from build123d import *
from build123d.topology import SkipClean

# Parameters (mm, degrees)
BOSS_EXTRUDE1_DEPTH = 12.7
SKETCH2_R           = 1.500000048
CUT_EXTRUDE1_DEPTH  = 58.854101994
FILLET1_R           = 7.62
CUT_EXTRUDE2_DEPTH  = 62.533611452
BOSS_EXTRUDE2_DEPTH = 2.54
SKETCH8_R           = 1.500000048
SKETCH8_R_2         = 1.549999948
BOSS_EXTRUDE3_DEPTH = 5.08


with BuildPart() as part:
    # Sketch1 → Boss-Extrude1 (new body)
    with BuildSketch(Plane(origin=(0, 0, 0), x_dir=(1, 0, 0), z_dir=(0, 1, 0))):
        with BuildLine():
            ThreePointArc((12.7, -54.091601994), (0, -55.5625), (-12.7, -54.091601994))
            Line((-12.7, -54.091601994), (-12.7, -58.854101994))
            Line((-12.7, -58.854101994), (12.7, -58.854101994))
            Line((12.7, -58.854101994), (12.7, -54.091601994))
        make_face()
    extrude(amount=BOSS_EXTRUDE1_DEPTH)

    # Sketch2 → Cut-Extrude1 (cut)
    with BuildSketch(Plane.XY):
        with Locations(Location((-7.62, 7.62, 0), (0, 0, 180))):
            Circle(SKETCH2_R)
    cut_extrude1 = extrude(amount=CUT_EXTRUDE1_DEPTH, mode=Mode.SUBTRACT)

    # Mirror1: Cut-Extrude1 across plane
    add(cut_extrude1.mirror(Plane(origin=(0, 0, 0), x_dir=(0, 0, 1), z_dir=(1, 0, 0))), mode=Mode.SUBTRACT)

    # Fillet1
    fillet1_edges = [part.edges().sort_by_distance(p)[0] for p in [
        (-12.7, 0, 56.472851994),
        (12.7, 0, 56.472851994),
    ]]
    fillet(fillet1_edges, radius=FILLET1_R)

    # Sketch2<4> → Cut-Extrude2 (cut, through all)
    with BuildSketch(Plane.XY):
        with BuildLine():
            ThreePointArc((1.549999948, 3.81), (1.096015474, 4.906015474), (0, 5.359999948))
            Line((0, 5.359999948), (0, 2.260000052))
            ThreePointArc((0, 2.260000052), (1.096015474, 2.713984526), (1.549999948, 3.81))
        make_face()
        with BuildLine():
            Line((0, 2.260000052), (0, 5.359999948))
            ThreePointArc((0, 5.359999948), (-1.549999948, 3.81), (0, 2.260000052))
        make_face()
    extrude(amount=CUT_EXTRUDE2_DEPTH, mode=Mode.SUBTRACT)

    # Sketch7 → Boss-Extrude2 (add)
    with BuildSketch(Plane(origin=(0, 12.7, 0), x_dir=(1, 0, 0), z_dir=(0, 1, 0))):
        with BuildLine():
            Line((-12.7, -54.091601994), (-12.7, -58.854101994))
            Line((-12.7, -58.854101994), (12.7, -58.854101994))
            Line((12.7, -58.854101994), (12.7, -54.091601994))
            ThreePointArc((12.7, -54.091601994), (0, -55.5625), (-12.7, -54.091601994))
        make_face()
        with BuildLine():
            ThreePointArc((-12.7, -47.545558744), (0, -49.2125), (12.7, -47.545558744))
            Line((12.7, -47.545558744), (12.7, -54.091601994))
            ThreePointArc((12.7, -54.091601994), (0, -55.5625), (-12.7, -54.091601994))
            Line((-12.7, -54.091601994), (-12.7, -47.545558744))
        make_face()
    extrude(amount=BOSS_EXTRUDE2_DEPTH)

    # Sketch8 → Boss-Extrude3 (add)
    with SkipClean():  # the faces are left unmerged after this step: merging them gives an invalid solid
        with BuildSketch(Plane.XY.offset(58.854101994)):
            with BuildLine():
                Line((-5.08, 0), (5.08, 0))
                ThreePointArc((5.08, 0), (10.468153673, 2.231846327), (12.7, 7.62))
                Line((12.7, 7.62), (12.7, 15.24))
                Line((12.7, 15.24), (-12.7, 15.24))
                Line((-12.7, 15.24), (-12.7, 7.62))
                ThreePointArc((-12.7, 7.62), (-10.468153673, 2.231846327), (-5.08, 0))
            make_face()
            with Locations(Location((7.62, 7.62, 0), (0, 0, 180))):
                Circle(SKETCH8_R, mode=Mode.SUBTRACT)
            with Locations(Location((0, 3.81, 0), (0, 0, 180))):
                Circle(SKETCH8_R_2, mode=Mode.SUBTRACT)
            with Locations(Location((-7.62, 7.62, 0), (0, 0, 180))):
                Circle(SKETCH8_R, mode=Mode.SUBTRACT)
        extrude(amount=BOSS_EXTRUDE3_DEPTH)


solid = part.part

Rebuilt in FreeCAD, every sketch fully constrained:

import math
import FreeCAD as App
import Part
import Sketcher
Q = App.Units.Quantity


def edges_at(feature, points):
    """Names of the edges that pass closest to the given points."""
    edges = feature.Shape.Edges
    near = lambda p: min(range(len(edges)), key=lambda i: edges[i].distToShape(Part.Vertex(*p))[0])
    return sorted({f"Edge{near(p) + 1}" for p in points})

doc = App.newDocument("Part")
body = doc.addObject("PartDesign::Body", "Body")

# Sketch on XZ plane
sketch1 = body.newObject("Sketcher::SketchObject", "Sketch")
sketch1.AttachmentSupport = (doc.getObject("XZ_Plane"), [""])
sketch1.MapMode = "FlatFace"
sketch1.addGeometry(Part.ArcOfCircle(Part.Circle(App.Vector(0, 0, 0), App.Vector(0, 0, 1), 55.6), math.radians(77), math.radians(103)), False)
sketch1.addGeometry(Part.LineSegment(App.Vector(-12.7, 54.1, 0), App.Vector(-12.7, 58.9, 0)), False)
sketch1.addGeometry(Part.LineSegment(App.Vector(-12.7, 58.9, 0), App.Vector(12.7, 58.9, 0)), False)
sketch1.addGeometry(Part.LineSegment(App.Vector(12.7, 58.9, 0), App.Vector(12.7, 54.1, 0)), False)
sketch1.addConstraint(Sketcher.Constraint("Coincident", 0, 2, 1, 1))
sketch1.addConstraint(Sketcher.Constraint("Coincident", 1, 2, 2, 1))
sketch1.addConstraint(Sketcher.Constraint("Coincident", 2, 2, 3, 1))
sketch1.addConstraint(Sketcher.Constraint("Coincident", 3, 2, 0, 1))
sketch1.addConstraint(Sketcher.Constraint("Vertical", 1))
sketch1.addConstraint(Sketcher.Constraint("Horizontal", 2))
sketch1.addConstraint(Sketcher.Constraint("Vertical", 3))
sketch1.addConstraint(Sketcher.Constraint("Coincident", 0, 3, -1, 1))
sketch1.addConstraint(Sketcher.Constraint("Horizontal", 0, 2, 3, 2))
sketch1.addConstraint(Sketcher.Constraint("DistanceX", 2, 1, 2, 2, Q("1 in")))
sketch1.addConstraint(Sketcher.Constraint("Radius", 0, Q("2.1875 in")))
sketch1.addConstraint(Sketcher.Constraint("DistanceY", 1, 1, 1, 2, Q("0.1875 in")))
pad1 = body.newObject("PartDesign::Pad", "Pad")
pad1.Profile = sketch1
pad1.Length = Q("0.5 in")
pad1.Reversed = True

# Sketch on XY plane
sketch2 = body.newObject("Sketcher::SketchObject", "Sketch001")
sketch2.AttachmentSupport = (doc.getObject("XY_Plane"), [""])
sketch2.MapMode = "FlatFace"
sketch2.addGeometry(Part.Circle(App.Vector(-7.6, 7.6, 0), App.Vector(0, 0, 1), 1.5), False)
sketch2.addConstraint(Sketcher.Constraint("DistanceX", 0, 3, -1, 1, Q("0.3 in")))
sketch2.addConstraint(Sketcher.Constraint("DistanceY", -1, 1, 0, 3, Q("0.3 in")))
sketch2.addConstraint(Sketcher.Constraint("Diameter", 0, Q("3 mm")))
pocket1 = body.newObject("PartDesign::Pocket", "Pocket")
pocket1.Profile = sketch2
pocket1.Length = 58.854102
pocket1.Reversed = True
doc.recompute()

mirrored = body.newObject("PartDesign::Mirrored", "Mirrored")
mirrored.Originals = [pocket1]
mirrored.MirrorPlane = (doc.getObject("YZ_Plane"), [""])
body.Tip = mirrored
doc.recompute()

fillet = body.newObject("PartDesign::Fillet", "Fillet")
fillet.Base = (mirrored, edges_at(mirrored, [(-12.7, 0, 56.473), (12.7, 0, 56.473)]))
fillet.Radius = Q("0.3 in")

# Sketch on XY plane
sketch3 = body.newObject("Sketcher::SketchObject", "Sketch002")
sketch3.AttachmentSupport = (doc.getObject("XY_Plane"), [""])
sketch3.MapMode = "FlatFace"
sketch3.addGeometry(Part.ArcOfCircle(Part.Circle(App.Vector(0, 3.8, 0), App.Vector(0, 0, 1), 1.5), math.radians(0), math.radians(90)), False)
sketch3.addGeometry(Part.ArcOfCircle(Part.Circle(App.Vector(0, 3.8, 0), App.Vector(0, 0, 1), 1.5), math.radians(90), math.radians(270)), False)
sketch3.addGeometry(Part.ArcOfCircle(Part.Circle(App.Vector(0, 3.8, 0), App.Vector(0, 0, 1), 1.5), math.radians(-90), math.radians(0)), False)
sketch3.addConstraint(Sketcher.Constraint("Tangent", 0, 2, 1, 1))
sketch3.addConstraint(Sketcher.Constraint("Tangent", 1, 2, 2, 1))
sketch3.addConstraint(Sketcher.Constraint("Tangent", 2, 2, 0, 1))
sketch3.addConstraint(Sketcher.Constraint("PointOnObject", 0, 3, -2))
sketch3.addConstraint(Sketcher.Constraint("PointOnObject", 0, 2, -2))
sketch3.addConstraint(Sketcher.Constraint("PointOnObject", 1, 2, -2))
sketch3.addConstraint(Sketcher.Constraint("Horizontal", 1, 3, 2, 2))
sketch3.addConstraint(Sketcher.Constraint("DistanceY", -1, 1, 0, 3, Q("0.15 in")))
sketch3.addConstraint(Sketcher.Constraint("Radius", 0, Q("1.55 mm")))
pocket2 = body.newObject("PartDesign::Pocket", "Pocket001")
pocket2.Profile = sketch3
pocket2.Type = "ThroughAll"
pocket2.Reversed = True

# Sketch on XZ plane
sketch4 = body.newObject("Sketcher::SketchObject", "Sketch003")
sketch4.AttachmentSupport = (doc.getObject("XZ_Plane"), [""])
sketch4.MapMode = "FlatFace"
sketch4.AttachmentOffset = App.Placement(App.Vector(0, 0, -0.5 * 25.4), App.Rotation())
sketch4.addGeometry(Part.LineSegment(App.Vector(-13, 59, 0), App.Vector(13, 59, 0)), False)
sketch4.addGeometry(Part.LineSegment(App.Vector(13, 59, 0), App.Vector(13, 48, 0)), False)
sketch4.addGeometry(Part.ArcOfCircle(Part.Circle(App.Vector(0, 0, 0), App.Vector(0, 0, 1), 49), math.radians(75), math.radians(105)), False)
sketch4.addGeometry(Part.LineSegment(App.Vector(-13, 48, 0), App.Vector(-13, 59, 0)), False)
sketch4.addConstraint(Sketcher.Constraint("Coincident", 0, 2, 1, 1))
sketch4.addConstraint(Sketcher.Constraint("Coincident", 1, 2, 2, 1))
sketch4.addConstraint(Sketcher.Constraint("Coincident", 2, 2, 3, 1))
sketch4.addConstraint(Sketcher.Constraint("Coincident", 3, 2, 0, 1))
sketch4.addConstraint(Sketcher.Constraint("Horizontal", 0))
sketch4.addConstraint(Sketcher.Constraint("Vertical", 1))
sketch4.addConstraint(Sketcher.Constraint("Vertical", 3))
sketch4.addConstraint(Sketcher.Constraint("Coincident", 2, 3, -1, 1))
sketch4.addConstraint(Sketcher.Constraint("Horizontal", 1, 2, 2, 2))
sketch4.addConstraint(Sketcher.Constraint("DistanceX", 0, 1, 0, 2, Q("1 in")))
sketch4.addConstraint(Sketcher.Constraint("Radius", 2, Q("1.9375 in")))
sketch4.addConstraint(Sketcher.Constraint("DistanceY", -1, 1, 0, 2, Q("58.854102 mm")))
pad2 = body.newObject("PartDesign::Pad", "Pad001")
pad2.Profile = sketch4
pad2.Length = Q("0.1 in")
pad2.Reversed = True

# Sketch on XY plane
sketch5 = body.newObject("Sketcher::SketchObject", "Sketch004")
sketch5.AttachmentSupport = (doc.getObject("XY_Plane"), [""])
sketch5.MapMode = "FlatFace"
sketch5.AttachmentOffset = App.Placement(App.Vector(0, 0, 58.854102), App.Rotation())
sketch5.addGeometry(Part.LineSegment(App.Vector(-5.1, 0, 0), App.Vector(5.1, 0, 0)), False)
sketch5.addGeometry(Part.ArcOfCircle(Part.Circle(App.Vector(5.1, 7.6, 0), App.Vector(0, 0, 1), 7.6), math.radians(-90), math.radians(0)), False)
sketch5.addGeometry(Part.LineSegment(App.Vector(12.7, 7.6, 0), App.Vector(12.7, 15.2, 0)), False)
sketch5.addGeometry(Part.LineSegment(App.Vector(12.7, 15.2, 0), App.Vector(-12.7, 15.2, 0)), False)
sketch5.addGeometry(Part.LineSegment(App.Vector(-12.7, 15.2, 0), App.Vector(-12.7, 7.6, 0)), False)
sketch5.addGeometry(Part.ArcOfCircle(Part.Circle(App.Vector(-5.1, 7.6, 0), App.Vector(0, 0, 1), 7.6), math.radians(180), math.radians(270)), False)
sketch5.addGeometry(Part.Circle(App.Vector(0, 3.8, 0), App.Vector(0, 0, 1), 1.5), False)
sketch5.addGeometry(Part.Circle(App.Vector(-7.6, 7.6, 0), App.Vector(0, 0, 1), 1.5), False)
sketch5.addGeometry(Part.Circle(App.Vector(7.6, 7.6, 0), App.Vector(0, 0, 1), 1.5), False)
sketch5.addConstraint(Sketcher.Constraint("Tangent", 0, 2, 1, 1))
sketch5.addConstraint(Sketcher.Constraint("Tangent", 1, 2, 2, 1))
sketch5.addConstraint(Sketcher.Constraint("Coincident", 2, 2, 3, 1))
sketch5.addConstraint(Sketcher.Constraint("Coincident", 3, 2, 4, 1))
sketch5.addConstraint(Sketcher.Constraint("Tangent", 4, 2, 5, 1))
sketch5.addConstraint(Sketcher.Constraint("Tangent", 5, 2, 0, 1))
sketch5.addConstraint(Sketcher.Constraint("Horizontal", 0))
sketch5.addConstraint(Sketcher.Constraint("Vertical", 2))
sketch5.addConstraint(Sketcher.Constraint("Horizontal", 3))
sketch5.addConstraint(Sketcher.Constraint("Vertical", 4))
sketch5.addConstraint(Sketcher.Constraint("Equal", 1, 5))
sketch5.addConstraint(Sketcher.Constraint("Equal", 7, 8))
sketch5.addConstraint(Sketcher.Constraint("Symmetric", 0, 2, 5, 2, -1, 1))
sketch5.addConstraint(Sketcher.Constraint("Symmetric", 7, 3, 8, 3, -2))
sketch5.addConstraint(Sketcher.Constraint("PointOnObject", 6, 3, -2))
sketch5.addConstraint(Sketcher.Constraint("Horizontal", 5, 3, 7, 3))
sketch5.addConstraint(Sketcher.Constraint("Radius", 1, Q("0.3 in")))
sketch5.addConstraint(Sketcher.Constraint("DistanceX", 3, 2, 3, 1, Q("1 in")))
sketch5.addConstraint(Sketcher.Constraint("DistanceY", 2, 1, 2, 2, Q("0.3 in")))
sketch5.addConstraint(Sketcher.Constraint("DistanceX", 7, 3, -1, 1, Q("0.3 in")))
sketch5.addConstraint(Sketcher.Constraint("Diameter", 6, Q("3.1 mm")))
sketch5.addConstraint(Sketcher.Constraint("Diameter", 7, Q("3 mm")))
sketch5.addConstraint(Sketcher.Constraint("DistanceY", -1, 1, 6, 3, Q("0.15 in")))
pad3 = body.newObject("PartDesign::Pad", "Pad002")
pad3.Profile = sketch5
pad3.Length = Q("0.2 in")

doc.recompute()
